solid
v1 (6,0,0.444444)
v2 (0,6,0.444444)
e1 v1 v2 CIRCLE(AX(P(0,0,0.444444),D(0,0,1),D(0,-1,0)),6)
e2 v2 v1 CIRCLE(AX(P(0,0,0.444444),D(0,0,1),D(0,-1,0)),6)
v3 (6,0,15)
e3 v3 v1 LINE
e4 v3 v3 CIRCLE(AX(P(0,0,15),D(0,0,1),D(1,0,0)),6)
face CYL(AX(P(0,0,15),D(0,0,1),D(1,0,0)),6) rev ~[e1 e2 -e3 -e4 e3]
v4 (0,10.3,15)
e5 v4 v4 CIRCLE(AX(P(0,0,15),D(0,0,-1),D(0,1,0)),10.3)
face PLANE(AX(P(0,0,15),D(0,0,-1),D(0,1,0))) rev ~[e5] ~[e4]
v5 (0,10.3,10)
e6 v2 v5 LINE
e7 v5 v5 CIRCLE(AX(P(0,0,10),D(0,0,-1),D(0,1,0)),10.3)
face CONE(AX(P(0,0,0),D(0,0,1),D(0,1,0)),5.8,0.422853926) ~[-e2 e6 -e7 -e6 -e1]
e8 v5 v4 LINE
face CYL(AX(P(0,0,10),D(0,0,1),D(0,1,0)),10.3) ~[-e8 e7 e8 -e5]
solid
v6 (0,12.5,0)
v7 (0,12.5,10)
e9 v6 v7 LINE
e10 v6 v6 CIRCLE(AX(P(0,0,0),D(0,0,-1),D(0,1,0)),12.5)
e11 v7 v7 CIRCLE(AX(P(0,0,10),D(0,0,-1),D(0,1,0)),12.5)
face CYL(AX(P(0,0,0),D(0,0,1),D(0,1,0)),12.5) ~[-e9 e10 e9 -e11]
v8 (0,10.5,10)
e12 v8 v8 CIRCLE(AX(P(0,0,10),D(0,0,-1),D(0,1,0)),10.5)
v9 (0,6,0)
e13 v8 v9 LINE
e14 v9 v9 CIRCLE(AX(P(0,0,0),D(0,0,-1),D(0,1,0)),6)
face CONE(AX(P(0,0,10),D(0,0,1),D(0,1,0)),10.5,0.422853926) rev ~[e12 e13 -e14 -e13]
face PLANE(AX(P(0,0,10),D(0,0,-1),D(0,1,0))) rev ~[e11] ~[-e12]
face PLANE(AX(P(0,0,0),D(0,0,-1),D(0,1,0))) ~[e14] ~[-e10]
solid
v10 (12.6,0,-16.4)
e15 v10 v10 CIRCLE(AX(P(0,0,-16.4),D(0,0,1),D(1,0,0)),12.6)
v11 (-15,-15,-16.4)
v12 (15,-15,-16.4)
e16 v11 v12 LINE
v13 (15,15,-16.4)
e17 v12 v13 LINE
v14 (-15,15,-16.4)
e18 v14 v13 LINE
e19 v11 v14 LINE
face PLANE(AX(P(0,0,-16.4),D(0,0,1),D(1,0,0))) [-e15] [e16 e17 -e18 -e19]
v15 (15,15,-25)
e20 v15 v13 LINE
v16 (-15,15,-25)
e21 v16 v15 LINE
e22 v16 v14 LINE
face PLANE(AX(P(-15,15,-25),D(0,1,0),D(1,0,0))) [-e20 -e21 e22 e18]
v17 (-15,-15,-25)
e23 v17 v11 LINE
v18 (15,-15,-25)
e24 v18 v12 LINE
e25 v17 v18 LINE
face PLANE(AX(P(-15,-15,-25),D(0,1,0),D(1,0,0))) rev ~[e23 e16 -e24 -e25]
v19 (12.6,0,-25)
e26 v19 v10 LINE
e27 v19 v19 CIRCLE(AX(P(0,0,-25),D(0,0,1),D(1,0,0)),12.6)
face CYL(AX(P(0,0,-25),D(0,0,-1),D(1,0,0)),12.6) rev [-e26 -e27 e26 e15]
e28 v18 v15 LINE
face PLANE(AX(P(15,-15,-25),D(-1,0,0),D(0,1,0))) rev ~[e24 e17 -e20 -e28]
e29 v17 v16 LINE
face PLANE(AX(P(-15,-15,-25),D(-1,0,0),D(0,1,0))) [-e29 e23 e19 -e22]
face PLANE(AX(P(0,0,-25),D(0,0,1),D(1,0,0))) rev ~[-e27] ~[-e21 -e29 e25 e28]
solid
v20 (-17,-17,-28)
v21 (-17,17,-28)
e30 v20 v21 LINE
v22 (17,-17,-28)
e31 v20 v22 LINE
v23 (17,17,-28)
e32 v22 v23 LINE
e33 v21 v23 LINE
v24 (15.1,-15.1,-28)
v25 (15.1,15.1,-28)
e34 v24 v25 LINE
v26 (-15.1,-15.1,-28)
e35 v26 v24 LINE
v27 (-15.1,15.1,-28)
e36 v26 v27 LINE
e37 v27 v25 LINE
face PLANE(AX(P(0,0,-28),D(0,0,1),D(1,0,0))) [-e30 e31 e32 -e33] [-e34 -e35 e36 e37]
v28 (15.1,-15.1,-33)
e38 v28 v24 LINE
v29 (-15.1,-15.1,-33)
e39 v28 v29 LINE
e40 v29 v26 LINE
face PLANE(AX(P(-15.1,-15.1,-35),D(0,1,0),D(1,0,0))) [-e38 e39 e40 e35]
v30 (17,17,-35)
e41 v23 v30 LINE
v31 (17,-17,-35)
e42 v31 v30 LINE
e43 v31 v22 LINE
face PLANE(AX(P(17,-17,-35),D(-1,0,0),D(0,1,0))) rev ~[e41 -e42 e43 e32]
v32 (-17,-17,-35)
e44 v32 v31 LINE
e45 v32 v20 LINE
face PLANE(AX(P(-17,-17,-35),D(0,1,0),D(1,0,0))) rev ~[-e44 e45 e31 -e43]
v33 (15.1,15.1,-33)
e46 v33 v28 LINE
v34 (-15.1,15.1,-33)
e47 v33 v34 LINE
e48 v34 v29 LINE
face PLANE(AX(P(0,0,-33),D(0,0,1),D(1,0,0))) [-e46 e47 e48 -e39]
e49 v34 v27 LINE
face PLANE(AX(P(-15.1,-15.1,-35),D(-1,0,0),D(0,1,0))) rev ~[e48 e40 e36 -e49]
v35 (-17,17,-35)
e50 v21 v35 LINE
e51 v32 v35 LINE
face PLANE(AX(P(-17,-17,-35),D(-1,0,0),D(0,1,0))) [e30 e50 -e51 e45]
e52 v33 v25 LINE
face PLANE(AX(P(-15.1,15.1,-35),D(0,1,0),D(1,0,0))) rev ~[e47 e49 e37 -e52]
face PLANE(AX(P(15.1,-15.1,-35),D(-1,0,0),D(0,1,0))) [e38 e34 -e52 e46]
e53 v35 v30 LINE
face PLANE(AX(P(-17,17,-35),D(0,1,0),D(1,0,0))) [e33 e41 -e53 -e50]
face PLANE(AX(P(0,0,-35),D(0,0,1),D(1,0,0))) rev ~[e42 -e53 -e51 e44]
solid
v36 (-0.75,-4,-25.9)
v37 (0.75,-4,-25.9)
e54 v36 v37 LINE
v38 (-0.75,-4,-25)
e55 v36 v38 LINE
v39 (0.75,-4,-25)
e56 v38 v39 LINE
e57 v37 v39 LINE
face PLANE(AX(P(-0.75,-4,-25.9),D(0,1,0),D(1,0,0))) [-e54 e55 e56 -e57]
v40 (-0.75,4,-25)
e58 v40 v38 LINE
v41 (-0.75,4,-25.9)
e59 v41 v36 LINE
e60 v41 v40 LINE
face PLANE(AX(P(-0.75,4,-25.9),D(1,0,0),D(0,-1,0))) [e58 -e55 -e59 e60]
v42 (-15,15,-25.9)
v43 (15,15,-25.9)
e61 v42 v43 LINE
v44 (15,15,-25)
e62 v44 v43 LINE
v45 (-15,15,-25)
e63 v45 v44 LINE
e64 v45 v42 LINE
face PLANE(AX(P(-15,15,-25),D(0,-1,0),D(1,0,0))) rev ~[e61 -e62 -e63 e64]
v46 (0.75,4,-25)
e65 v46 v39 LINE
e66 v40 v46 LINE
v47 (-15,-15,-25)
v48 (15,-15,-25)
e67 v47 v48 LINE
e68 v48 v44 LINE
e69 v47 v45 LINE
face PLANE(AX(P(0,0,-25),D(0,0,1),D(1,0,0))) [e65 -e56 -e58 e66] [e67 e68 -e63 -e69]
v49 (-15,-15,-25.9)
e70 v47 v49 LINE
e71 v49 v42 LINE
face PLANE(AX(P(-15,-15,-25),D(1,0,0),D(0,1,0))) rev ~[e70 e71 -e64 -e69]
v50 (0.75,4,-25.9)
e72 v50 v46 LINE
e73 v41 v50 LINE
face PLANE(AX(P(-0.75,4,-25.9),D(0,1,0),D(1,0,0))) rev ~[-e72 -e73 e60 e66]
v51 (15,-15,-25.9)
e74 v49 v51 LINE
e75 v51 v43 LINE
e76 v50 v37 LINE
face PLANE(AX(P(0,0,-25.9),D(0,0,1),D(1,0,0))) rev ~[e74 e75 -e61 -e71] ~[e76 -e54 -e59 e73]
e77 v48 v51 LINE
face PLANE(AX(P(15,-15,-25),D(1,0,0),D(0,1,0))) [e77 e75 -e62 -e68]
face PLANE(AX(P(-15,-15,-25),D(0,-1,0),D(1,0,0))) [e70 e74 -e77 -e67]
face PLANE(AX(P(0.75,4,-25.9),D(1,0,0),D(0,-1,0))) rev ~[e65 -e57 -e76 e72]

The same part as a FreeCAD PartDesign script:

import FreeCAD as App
import Part
import Sketcher

V = App.Vector


def add_polygon(sketch, points):
    """Adds a closed chain of lines whose ends are joined by coincident constraints."""
    first, n = sketch.GeometryCount, len(points)
    for a, b in zip(points, points[1:] + points[:1]):
        sketch.addGeometry(Part.LineSegment(App.Vector(*a, 0), App.Vector(*b, 0)), False)
    for i in range(n):
        sketch.addConstraint(Sketcher.Constraint("Coincident", first + i, 2, first + (i + 1) % n, 1))

doc = App.newDocument("Part")
params = doc.addObject("Spreadsheet::Sheet", "Params")
for row, (alias, value) in enumerate([
    ("sketch1_width", "2 mm"),
    ("sketch1_height", "10 mm"),
    ("sketch1_width2", "6.5 mm"),
    ("revolution_angle", "360 deg"),
    ("sketch2_height", "15 mm"),
    ("sketch2_height2", "5 mm"),
    ("sketch2_width", "5.8 mm"),
    ("sketch2_width2", "10.3 mm"),
    ("revolution2_angle", "360 deg"),
    ("sketch3_diameter", "12 mm"),
    ("sketch4_diameter", "25.2 mm"),
    ("sketch4_width", "30 mm"),
    ("pad1_length", "8.6 mm"),
    ("sketch5_width", "30 mm"),
    ("pad2_length", "0.9 mm"),
    ("sketch6_height", "8 mm"),
    ("sketch6_width", "1.5 mm"),
    ("sketch7_width", "34 mm"),
    ("pad3_length", "2 mm"),
    ("sketch8_width", "34 mm"),
    ("sketch8_width2", "30.2 mm"),
    ("pad4_length", "7 mm"),
], start=1):
    params.set(f"A{row}", alias)
    params.set(f"B{row}", "=" + value)
    params.setAlias(f"B{row}", alias)

body = doc.addObject("PartDesign::Body", "Body")

sketch1 = doc.addObject("Sketcher::SketchObject", "Sketch")
body.addObject(sketch1)
sketch1.AttachmentSupport = (doc.YZ_Plane, [""])
sketch1.MapMode = "FlatFace"
add_polygon(sketch1, [(12.5, 10), (10.5, 10), (6, 0), (12.5, 0)])
sketch1.addConstraint([
    Sketcher.Constraint("Horizontal", 0),
    Sketcher.Constraint("Horizontal", 2),
    Sketcher.Constraint("Vertical", 3),
    Sketcher.Constraint("PointOnObject", 1, 2, -1),
    Sketcher.Constraint("DistanceX", 0, 2, 0, 1, 2.0),
    Sketcher.Constraint("DistanceY", 3, 1, 3, 2, 10.0),
    Sketcher.Constraint("DistanceX", 2, 1, 2, 2, 6.5),
    Sketcher.Constraint("DistanceX", -1, 1, 1, 2, 6.0),
])
sketch1.setExpression("Constraints[8]", "Params.sketch1_width")
sketch1.setExpression("Constraints[9]", "Params.sketch1_height")
sketch1.setExpression("Constraints[10]", "Params.sketch1_width2")
revolution = doc.addObject("PartDesign::Revolution", "Revolution")
body.addObject(revolution)
revolution.Profile = sketch1
revolution.ReferenceAxis = (sketch1, ["V_Axis"])
revolution.setExpression("Angle", "Params.revolution_angle")
body2 = doc.addObject("PartDesign::Body", "Body001")

sketch2 = doc.addObject("Sketcher::SketchObject", "Sketch001")
body2.addObject(sketch2)
sketch2.AttachmentSupport = (doc.getObject("YZ_Plane001"), [""])
sketch2.MapMode = "FlatFace"
add_polygon(sketch2, [(0, 15), (0, 0), (6, 0), (10, 10), (10, 15)])
sketch2.addConstraint([
    Sketcher.Constraint("Vertical", 0),
    Sketcher.Constraint("Horizontal", 1),
    Sketcher.Constraint("Vertical", 3),
    Sketcher.Constraint("Horizontal", 4),
    Sketcher.Constraint("Coincident", 0, 2, -1, 1),
    Sketcher.Constraint("DistanceY", 0, 2, 0, 1, 15.0),
    Sketcher.Constraint("DistanceY", 3, 1, 3, 2, 5.0),
    Sketcher.Constraint("DistanceX", 1, 1, 1, 2, 5.8),
    Sketcher.Constraint("DistanceX", 4, 2, 4, 1, 10.3),
])
sketch2.setExpression("Constraints[10]", "Params.sketch2_height")
sketch2.setExpression("Constraints[11]", "Params.sketch2_height2")
sketch2.setExpression("Constraints[12]", "Params.sketch2_width")
sketch2.setExpression("Constraints[13]", "Params.sketch2_width2")
revolution2 = doc.addObject("PartDesign::Revolution", "Revolution001")
body2.addObject(revolution2)
revolution2.Profile = sketch2
revolution2.ReferenceAxis = (sketch2, ["V_Axis"])
revolution2.setExpression("Angle", "Params.revolution2_angle")

sketch3 = doc.addObject("Sketcher::SketchObject", "Sketch002")
body2.addObject(sketch3)
sketch3.AttachmentSupport = (doc.getObject("XY_Plane001"), [""])
sketch3.MapMode = "FlatFace"
sketch3.AttachmentOffset = App.Placement(V(0, 0, 15), App.Rotation())
sketch3.addGeometry(Part.Circle(V(0, 0, 0), V(0, 0, 1), 6), False)
sketch3.addConstraint([
    Sketcher.Constraint("Coincident", 0, 3, -1, 1),
    Sketcher.Constraint("Diameter", 0, 12.0),
])
sketch3.setExpression("Constraints[1]", "Params.sketch3_diameter")
pocket1 = doc.addObject("PartDesign::Pocket", "Pocket")
body2.addObject(pocket1)
pocket1.Profile = sketch3
pocket1.Type = "ThroughAll"
body3 = doc.addObject("PartDesign::Body", "Body002")

sketch4 = doc.addObject("Sketcher::SketchObject", "Sketch003")
body3.addObject(sketch4)
sketch4.AttachmentSupport = (doc.getObject("XY_Plane002"), [""])
sketch4.MapMode = "FlatFace"
sketch4.AttachmentOffset = App.Placement(V(0, 0, -25), App.Rotation())
add_polygon(sketch4, [(-15, 15), (-15, -15), (15, -15), (15, 15)])
sketch4.addGeometry(Part.Circle(V(0, 0, 0), V(0, 0, 1), 13), False)
sketch4.addConstraint([
    Sketcher.Constraint("Vertical", 0),
    Sketcher.Constraint("Horizontal", 1),
    Sketcher.Constraint("Vertical", 2),
    Sketcher.Constraint("Horizontal", 3),
    Sketcher.Constraint("Coincident", 4, 3, -1, 1),
    Sketcher.Constraint("Symmetric", 0, 2, 2, 2, -1, 1),
    Sketcher.Constraint("Equal", 3, 0),
    Sketcher.Constraint("Diameter", 4, 25.2),
    Sketcher.Constraint("DistanceX", 1, 1, 1, 2, 30.0),
])
sketch4.setExpression("Constraints[11]", "Params.sketch4_diameter")
sketch4.setExpression("Constraints[12]", "Params.sketch4_width")
pad1 = doc.addObject("PartDesign::Pad", "Pad")
body3.addObject(pad1)
pad1.Profile = sketch4
pad1.setExpression("Length", "Params.pad1_length")
body4 = doc.addObject("PartDesign::Body", "Body003")

sketch5 = doc.addObject("Sketcher::SketchObject", "Sketch004")
body4.addObject(sketch5)
sketch5.AttachmentSupport = (doc.getObject("XY_Plane003"), [""])
sketch5.MapMode = "FlatFace"
sketch5.AttachmentOffset = App.Placement(V(0, 0, -25), App.Rotation())
add_polygon(sketch5, [(-15, 15), (-15, -15), (15, -15), (15, 15)])
sketch5.addConstraint([
    Sketcher.Constraint("Vertical", 0),
    Sketcher.Constraint("Horizontal", 1),
    Sketcher.Constraint("Vertical", 2),
    Sketcher.Constraint("Horizontal", 3),
    Sketcher.Constraint("Symmetric", 0, 2, 2, 2, -1, 1),
    Sketcher.Constraint("Equal", 3, 0),
    Sketcher.Constraint("DistanceX", 1, 1, 1, 2, 30.0),
])
sketch5.setExpression("Constraints[10]", "Params.sketch5_width")
pad2 = doc.addObject("PartDesign::Pad", "Pad001")
body4.addObject(pad2)
pad2.Profile = sketch5
pad2.setExpression("Length", "Params.pad2_length")
pad2.Reversed = True

sketch6 = doc.addObject("Sketcher::SketchObject", "Sketch005")
body4.addObject(sketch6)
sketch6.AttachmentSupport = (doc.getObject("XY_Plane003"), [""])
sketch6.MapMode = "FlatFace"
sketch6.AttachmentOffset = App.Placement(V(0, 0, -25.9), App.Rotation())
add_polygon(sketch6, [(-0.8, -4), (-0.8, 4), (0.8, 4), (0.8, -4)])
sketch6.addConstraint([
    Sketcher.Constraint("Vertical", 0),
    Sketcher.Constraint("Horizontal", 1),
    Sketcher.Constraint("Vertical", 2),
    Sketcher.Constraint("Horizontal", 3),
    Sketcher.Constraint("Symmetric", 0, 2, 2, 2, -1, 1),
    Sketcher.Constraint("DistanceY", 0, 1, 0, 2, 8.0),
    Sketcher.Constraint("DistanceX", 1, 1, 1, 2, 1.5),
])
sketch6.setExpression("Constraints[9]", "Params.sketch6_height")
sketch6.setExpression("Constraints[10]", "Params.sketch6_width")
pocket2 = doc.addObject("PartDesign::Pocket", "Pocket001")
body4.addObject(pocket2)
pocket2.Profile = sketch6
pocket2.Type = "ThroughAll"
pocket2.Reversed = True
body5 = doc.addObject("PartDesign::Body", "Body004")

sketch7 = doc.addObject("Sketcher::SketchObject", "Sketch006")
body5.addObject(sketch7)
sketch7.AttachmentSupport = (doc.getObject("XY_Plane004"), [""])
sketch7.MapMode = "FlatFace"
sketch7.AttachmentOffset = App.Placement(V(0, 0, -35), App.Rotation())
add_polygon(sketch7, [(-17, 17), (-17, -17), (17, -17), (17, 17)])
sketch7.addConstraint([
    Sketcher.Constraint("Vertical", 0),
    Sketcher.Constraint("Horizontal", 1),
    Sketcher.Constraint("Vertical", 2),
    Sketcher.Constraint("Horizontal", 3),
    Sketcher.Constraint("Symmetric", 0, 2, 2, 2, -1, 1),
    Sketcher.Constraint("Equal", 3, 0),
    Sketcher.Constraint("DistanceX", 1, 1, 1, 2, 34.0),
])
sketch7.setExpression("Constraints[10]", "Params.sketch7_width")
pad3 = doc.addObject("PartDesign::Pad", "Pad002")
body5.addObject(pad3)
pad3.Profile = sketch7
pad3.setExpression("Length", "Params.pad3_length")

sketch8 = doc.addObject("Sketcher::SketchObject", "Sketch007")
body5.addObject(sketch8)
sketch8.AttachmentSupport = (doc.getObject("XY_Plane004"), [""])
sketch8.MapMode = "FlatFace"
sketch8.AttachmentOffset = App.Placement(V(0, 0, -35), App.Rotation())
add_polygon(sketch8, [(-17, 17), (-17, -17), (17, -17), (17, 17)])
add_polygon(sketch8, [(15, -15), (-15, -15), (-15, 15), (15, 15)])
sketch8.addConstraint([
    Sketcher.Constraint("Vertical", 0),
    Sketcher.Constraint("Horizontal", 1),
    Sketcher.Constraint("Vertical", 2),
    Sketcher.Constraint("Horizontal", 3),
    Sketcher.Constraint("Horizontal", 4),
    Sketcher.Constraint("Vertical", 5),
    Sketcher.Constraint("Horizontal", 6),
    Sketcher.Constraint("Vertical", 7),
    Sketcher.Constraint("Symmetric", 0, 2, 2, 2, -1, 1),
    Sketcher.Constraint("Symmetric", 4, 2, 6, 2, -1, 1),
    Sketcher.Constraint("Equal", 3, 0),
    Sketcher.Constraint("Equal", 6, 5),
    Sketcher.Constraint("DistanceX", 1, 1, 1, 2, 34.0),
    Sketcher.Constraint("DistanceX", 4, 2, 4, 1, 30.2),
])
sketch8.setExpression("Constraints[20]", "Params.sketch8_width")
sketch8.setExpression("Constraints[21]", "Params.sketch8_width2")
pad4 = doc.addObject("PartDesign::Pad", "Pad003")
body5.addObject(pad4)
pad4.Profile = sketch8
pad4.setExpression("Length", "Params.pad4_length")

doc.recompute()
